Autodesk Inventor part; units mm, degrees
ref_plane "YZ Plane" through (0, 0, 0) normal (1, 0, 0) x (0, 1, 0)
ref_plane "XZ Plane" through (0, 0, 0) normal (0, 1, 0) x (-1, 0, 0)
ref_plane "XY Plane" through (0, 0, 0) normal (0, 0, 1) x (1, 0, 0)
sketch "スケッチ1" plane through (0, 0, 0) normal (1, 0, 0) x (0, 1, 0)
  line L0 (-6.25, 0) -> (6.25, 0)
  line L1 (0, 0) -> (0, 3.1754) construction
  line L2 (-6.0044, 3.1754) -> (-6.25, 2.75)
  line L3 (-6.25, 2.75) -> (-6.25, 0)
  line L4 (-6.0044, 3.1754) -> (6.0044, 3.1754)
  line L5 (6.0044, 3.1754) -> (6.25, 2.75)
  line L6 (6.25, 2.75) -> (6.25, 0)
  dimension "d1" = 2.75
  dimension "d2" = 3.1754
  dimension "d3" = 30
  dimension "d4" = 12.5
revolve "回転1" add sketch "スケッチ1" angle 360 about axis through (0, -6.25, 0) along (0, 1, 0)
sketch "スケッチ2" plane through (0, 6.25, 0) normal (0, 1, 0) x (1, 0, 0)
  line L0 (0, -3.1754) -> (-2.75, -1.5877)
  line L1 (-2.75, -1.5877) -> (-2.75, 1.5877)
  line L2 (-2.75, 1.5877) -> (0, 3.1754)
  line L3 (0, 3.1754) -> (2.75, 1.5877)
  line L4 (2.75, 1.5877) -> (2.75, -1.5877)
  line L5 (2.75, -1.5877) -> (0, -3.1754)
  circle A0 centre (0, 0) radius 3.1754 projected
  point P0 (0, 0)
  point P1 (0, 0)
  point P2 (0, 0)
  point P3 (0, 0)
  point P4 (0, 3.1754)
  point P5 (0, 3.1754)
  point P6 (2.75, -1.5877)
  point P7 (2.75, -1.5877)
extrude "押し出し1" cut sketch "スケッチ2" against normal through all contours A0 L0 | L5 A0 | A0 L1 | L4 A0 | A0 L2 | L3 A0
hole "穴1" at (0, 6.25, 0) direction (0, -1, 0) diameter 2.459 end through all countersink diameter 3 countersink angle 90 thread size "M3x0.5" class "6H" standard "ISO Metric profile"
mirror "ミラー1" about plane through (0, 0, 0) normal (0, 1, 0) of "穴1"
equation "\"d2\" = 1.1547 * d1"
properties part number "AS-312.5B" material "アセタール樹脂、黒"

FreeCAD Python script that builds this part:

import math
import FreeCAD as App
import Part
import Sketcher
Q = App.Units.Quantity


def add_polygon(sketch, points):
    """Adds a closed chain of lines whose ends are joined by coincident constraints."""
    first, n = sketch.GeometryCount, len(points)
    for a, b in zip(points, points[1:] + points[:1]):
        sketch.addGeometry(Part.LineSegment(App.Vector(*a, 0), App.Vector(*b, 0)), False)
    for i in range(n):
        sketch.addConstraint(Sketcher.Constraint("Coincident", first + i, 2, first + (i + 1) % n, 1))

doc = App.newDocument("Part")
body = doc.addObject("PartDesign::Body", "Body")

# Sketch on YZ plane
sketch1 = body.newObject("Sketcher::SketchObject", "Sketch")
sketch1.AttachmentSupport = (doc.getObject("YZ_Plane"), [""])
sketch1.MapMode = "FlatFace"
add_polygon(sketch1, [(-6.25, 2.75), (-6.25, 0), (6.25, 0), (6.25, 2.75), (6, 3.18), (-6, 3.18)])  # lines 0-5
sketch1.addConstraint([
    Sketcher.Constraint("Vertical", 0),
    Sketcher.Constraint("Horizontal", 1),
    Sketcher.Constraint("Vertical", 2),
    Sketcher.Constraint("Horizontal", 4),
    Sketcher.Constraint("Symmetric", 0, 2, 1, 2, -1, 1),
    Sketcher.Constraint("Horizontal", 2, 2, 5, 2),
    Sketcher.Constraint("Equal", 3, 5),
    Sketcher.Constraint("DistanceX", 1, 1, 1, 2, 12.5),
    Sketcher.Constraint("DistanceY", 0, 2, 0, 1, 2.75),
    Sketcher.Constraint("Angle", 3, Q("119.9995 deg")),
    Sketcher.Constraint("DistanceY", -1, 1, 3, 2, 3.1754),
])
revolution = body.newObject("PartDesign::Revolution", "Revolution")
revolution.Profile = sketch1
revolution.ReferenceAxis = (sketch1, ["H_Axis"])
revolution.Angle = 360

# Sketch on XZ plane
sketch2 = body.newObject("Sketcher::SketchObject", "Sketch001")
sketch2.AttachmentSupport = (doc.getObject("XZ_Plane"), [""])
sketch2.MapMode = "FlatFace"
sketch2.AttachmentOffset = App.Placement(App.Vector(0, 0, -6.25), App.Rotation())
sketch2.addGeometry([
    Part.ArcOfCircle(Part.Circle(App.Vector(0, 0, 0), App.Vector(0, 0, 1), 3.2), math.radians(90), math.radians(150)),  # 0
    Part.LineSegment(App.Vector(0, 3.2, 0), App.Vector(-2.8, 1.6, 0)),  # 1
    Part.LineSegment(App.Vector(2.8, 1.6, 0), App.Vector(0, 3.2, 0)),  # 2
    Part.ArcOfCircle(Part.Circle(App.Vector(0, 0, 0), App.Vector(0, 0, 1), 3.2), math.radians(30), math.radians(90)),  # 3
    Part.ArcOfCircle(Part.Circle(App.Vector(0, 0, 0), App.Vector(0, 0, 1), 3.2), math.radians(150), math.radians(210)),  # 4
    Part.LineSegment(App.Vector(-2.8, -1.6, 0), App.Vector(-2.8, 1.6, 0)),  # 5
    Part.LineSegment(App.Vector(2.8, -1.6, 0), App.Vector(2.8, 1.6, 0)),  # 6
    Part.ArcOfCircle(Part.Circle(App.Vector(0, 0, 0), App.Vector(0, 0, 1), 3.2), math.radians(-30), math.radians(30)),  # 7
    Part.ArcOfCircle(Part.Circle(App.Vector(0, 0, 0), App.Vector(0, 0, 1), 3.2), math.radians(-150), math.radians(-90)),  # 8
    Part.LineSegment(App.Vector(0, -3.2, 0), App.Vector(-2.8, -1.6, 0)),  # 9
    Part.LineSegment(App.Vector(0, -3.2, 0), App.Vector(2.8, -1.6, 0)),  # 10
    Part.ArcOfCircle(Part.Circle(App.Vector(0, 0, 0), App.Vector(0, 0, 1), 3.2), math.radians(-90), math.radians(-30)),  # 11
], False)
sketch2.addConstraint([
    Sketcher.Constraint("Coincident", 0, 1, 1, 1),
    Sketcher.Constraint("Coincident", 1, 2, 0, 2),
    Sketcher.Constraint("Coincident", 2, 1, 3, 1),
    Sketcher.Constraint("Coincident", 3, 2, 2, 2),
    Sketcher.Constraint("Coincident", 4, 1, 5, 2),
    Sketcher.Constraint("Coincident", 5, 1, 4, 2),
    Sketcher.Constraint("Coincident", 6, 1, 7, 1),
    Sketcher.Constraint("Coincident", 7, 2, 6, 2),
    Sketcher.Constraint("Coincident", 8, 1, 9, 2),
    Sketcher.Constraint("Coincident", 9, 1, 8, 2),
    Sketcher.Constraint("Coincident", 10, 1, 11, 1),
    Sketcher.Constraint("Coincident", 11, 2, 10, 2),
    Sketcher.Constraint("Vertical", 5),
    Sketcher.Constraint("Vertical", 6),
    Sketcher.Constraint("Coincident", 0, 3, -1, 1),
    Sketcher.Constraint("Coincident", 3, 3, -1, 1),
    Sketcher.Constraint("Coincident", 4, 3, -1, 1),
    Sketcher.Constraint("Coincident", 7, 3, -1, 1),
    Sketcher.Constraint("Coincident", 8, 3, -1, 1),
    Sketcher.Constraint("Coincident", 11, 3, -1, 1),
    Sketcher.Constraint("Coincident", 3, 2, 0, 1),
    Sketcher.Constraint("Coincident", 4, 1, 1, 2),
    Sketcher.Constraint("Coincident", 7, 2, 2, 1),
    Sketcher.Constraint("Coincident", 8, 1, 5, 1),
    Sketcher.Constraint("Coincident", 10, 1, 9, 1),
    Sketcher.Constraint("PointOnObject", 0, 1, -2),
    Sketcher.Constraint("PointOnObject", 9, 1, -2),
    Sketcher.Constraint("Parallel", 2, 9),
    Sketcher.Constraint("Parallel", 1, 10),
    Sketcher.Constraint("Angle", 1, Q("-150.0002 deg")),
    Sketcher.Constraint("Radius", 0, 3.1754),
])
pocket1 = body.newObject("PartDesign::Pocket", "Pocket")
pocket1.Profile = sketch2
pocket1.Type = "ThroughAll"
pocket1.Reversed = True

# Sketch on XZ plane
sketch3 = body.newObject("Sketcher::SketchObject", "Sketch002")
sketch3.AttachmentSupport = (doc.getObject("XZ_Plane"), [""])
sketch3.MapMode = "FlatFace"
sketch3.AttachmentOffset = App.Placement(App.Vector(0, 0, -6.25), App.Rotation())
sketch3.addGeometry(Part.Circle(App.Vector(0, 0, 0), App.Vector(0, 0, 1), 1.2), False)
sketch3.addConstraint([
    Sketcher.Constraint("Coincident", 0, 3, -1, 1),
    Sketcher.Constraint("Diameter", 0, 2.459),
])
doc.recompute()
hole = body.newObject("PartDesign::Hole", "Hole")
hole.Profile = sketch3
hole.ThreadType = "None"
hole.Diameter = 2.459
hole.DepthType = "ThroughAll"
hole.HoleCutType = "Countersink"
hole.HoleCutDiameter = 3
hole.HoleCutCountersinkAngle = 90
hole.Reversed = True
doc.recompute()

mirrored = body.newObject("PartDesign::Mirrored", "Mirrored")
mirrored.Originals = [hole]
mirrored.MirrorPlane = (doc.getObject("XZ_Plane"), [""])
body.Tip = mirrored

doc.recompute()
